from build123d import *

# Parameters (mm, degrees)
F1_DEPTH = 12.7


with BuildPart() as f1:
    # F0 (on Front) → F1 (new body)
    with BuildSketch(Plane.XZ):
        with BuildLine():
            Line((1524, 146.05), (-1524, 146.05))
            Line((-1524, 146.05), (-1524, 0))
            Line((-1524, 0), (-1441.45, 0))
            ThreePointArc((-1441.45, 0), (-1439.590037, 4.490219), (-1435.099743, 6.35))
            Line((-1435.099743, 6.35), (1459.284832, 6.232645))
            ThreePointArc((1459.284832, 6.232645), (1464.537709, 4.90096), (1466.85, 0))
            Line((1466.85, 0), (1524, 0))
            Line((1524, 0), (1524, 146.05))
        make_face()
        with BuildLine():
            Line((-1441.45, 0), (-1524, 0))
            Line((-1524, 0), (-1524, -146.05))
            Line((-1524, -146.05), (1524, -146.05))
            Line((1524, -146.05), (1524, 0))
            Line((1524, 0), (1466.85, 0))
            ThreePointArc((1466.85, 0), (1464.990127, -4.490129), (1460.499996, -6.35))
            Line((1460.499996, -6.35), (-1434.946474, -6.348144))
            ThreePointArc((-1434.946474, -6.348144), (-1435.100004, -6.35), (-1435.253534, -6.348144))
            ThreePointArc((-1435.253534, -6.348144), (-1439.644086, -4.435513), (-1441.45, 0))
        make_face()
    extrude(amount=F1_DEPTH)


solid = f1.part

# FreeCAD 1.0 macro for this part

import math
import FreeCAD as App
import Part
import Sketcher
Q = App.Units.Quantity


def add_polygon(sketch, points):
    """Adds a closed chain of lines whose ends are joined by coincident constraints."""
    first, n = sketch.GeometryCount, len(points)
    for a, b in zip(points, points[1:] + points[:1]):
        sketch.addGeometry(Part.LineSegment(App.Vector(*a, 0), App.Vector(*b, 0)), False)
    for i in range(n):
        sketch.addConstraint(Sketcher.Constraint("Coincident", first + i, 2, first + (i + 1) % n, 1))

doc = App.newDocument("Part")
params = doc.addObject("Spreadsheet::Sheet", "Params")
for row, (alias, value) in enumerate([
    ("sketch1_width", "120 in"),
    ("sketch1_radius", "0.25 in"),
    ("sketch1_height", "11.5 in"),
    ("pad1_length", "0.5 in"),
], start=1):
    params.set(f"A{row}", alias)
    params.set(f"B{row}", "=" + value)
    params.setAlias(f"B{row}", alias)

body = doc.addObject("PartDesign::Body", "Body")

sketch1 = body.newObject("Sketcher::SketchObject", "Sketch")
sketch1.AttachmentSupport = (doc.getObject("XZ_Plane"), [""])
sketch1.MapMode = "FlatFace"
add_polygon(sketch1, [(1524, 146.05), (-1524, 146.05), (-1524, -146.05), (1524, -146.05)])
sketch1.addGeometry(Part.ArcOfCircle(Part.Circle(App.Vector(-1435.1, 0, 0), App.Vector(0, 0, 1), 6.35), math.radians(89.997683), math.radians(179.999998)), False)
sketch1.addGeometry(Part.LineSegment(App.Vector(-1435.099743, 6.35, 0), App.Vector(1459.284832, 6.232645, 0)), False)
sketch1.addGeometry(Part.ArcOfCircle(Part.Circle(App.Vector(1460.500001, 0.000001, 0), App.Vector(0, 0, 1), 6.349999), math.radians(-0.000006), math.radians(101.032465)), False)
sketch1.addGeometry(Part.ArcOfCircle(Part.Circle(App.Vector(1460.5, 0, 0), App.Vector(0, 0, 1), 6.35), math.radians(-90.000034), math.radians(-0.000002)), False)
sketch1.addGeometry(Part.LineSegment(App.Vector(1460.499996, -6.35, 0), App.Vector(-1434.946474, -6.348144, 0)), False)
sketch1.addGeometry(Part.ArcOfCircle(Part.Circle(App.Vector(-1435.100004, 0.000998, 0), App.Vector(0, 0, 1), 6.350998), math.radians(-91.385212), math.radians(-88.614788)), False)
sketch1.addGeometry(Part.ArcOfCircle(Part.Circle(App.Vector(-1435.099998, 0.000002, 0), App.Vector(0, 0, 1), 6.350002), math.radians(-179.999986), math.radians(-91.385484)), False)
sketch1.addConstraint([
    Sketcher.Constraint("Tangent", 4, 1, 5, 1),
    Sketcher.Constraint("Coincident", 5, 2, 6, 2),
    Sketcher.Constraint("Tangent", 6, 1, 7, 2),
    Sketcher.Constraint("Tangent", 7, 1, 8, 1),
    Sketcher.Constraint("Coincident", 8, 2, 9, 2),
    Sketcher.Constraint("Coincident", 9, 1, 10, 2),
    Sketcher.Constraint("Tangent", 10, 1, 4, 2),
    Sketcher.Constraint("Horizontal", 0),
    Sketcher.Constraint("Vertical", 1),
    Sketcher.Constraint("Horizontal", 2),
    Sketcher.Constraint("Vertical", 3),
    Sketcher.Constraint("Equal", 4, 6),
    Sketcher.Constraint("Equal", 6, 7),
    Sketcher.Constraint("Equal", 7, 10),
    Sketcher.Constraint("Symmetric", 0, 2, 2, 2, -1, 1),
    Sketcher.Constraint("PointOnObject", 4, 3, -1),
    Sketcher.Constraint("PointOnObject", 6, 3, -1),
    Sketcher.Constraint("PointOnObject", 6, 1, -1),
    Sketcher.Constraint("PointOnObject", 10, 1, -1),
    Sketcher.Constraint("Horizontal", 8, 2, 9, 1),
    Sketcher.Constraint("DistanceX", 0, 2, 0, 1, Q("120 in")),
    Sketcher.Constraint("Radius", 4, Q("0.25 in")),
    Sketcher.Constraint("DistanceY", 1, 2, 1, 1, Q("11.5 in")),
    Sketcher.Constraint("DistanceX", 4, 3, 6, 3, Q("114 in")),
    Sketcher.Constraint("DistanceX", 9, 3, 7, 3, Q("114.0000001 in")),
    Sketcher.Constraint("DistanceX", 4, 3, -1, 1, Q("56.5 in")),
    Sketcher.Constraint("Radius", 9, 6.350998),
    Sketcher.Constraint("Distance", 8, 2895.44647),
    Sketcher.Constraint("DistanceX", -1, 1, 5, 2, 1459.284832),
])
sketch1.setExpression("Constraints[24]", "Params.sketch1_width")
sketch1.setExpression("Constraints[25]", "Params.sketch1_radius")
sketch1.setExpression("Constraints[26]", "Params.sketch1_height")
pad1 = body.newObject("PartDesign::Pad", "Pad")
pad1.Profile = sketch1
pad1.setExpression("Length", "Params.pad1_length")

doc.recompute()
